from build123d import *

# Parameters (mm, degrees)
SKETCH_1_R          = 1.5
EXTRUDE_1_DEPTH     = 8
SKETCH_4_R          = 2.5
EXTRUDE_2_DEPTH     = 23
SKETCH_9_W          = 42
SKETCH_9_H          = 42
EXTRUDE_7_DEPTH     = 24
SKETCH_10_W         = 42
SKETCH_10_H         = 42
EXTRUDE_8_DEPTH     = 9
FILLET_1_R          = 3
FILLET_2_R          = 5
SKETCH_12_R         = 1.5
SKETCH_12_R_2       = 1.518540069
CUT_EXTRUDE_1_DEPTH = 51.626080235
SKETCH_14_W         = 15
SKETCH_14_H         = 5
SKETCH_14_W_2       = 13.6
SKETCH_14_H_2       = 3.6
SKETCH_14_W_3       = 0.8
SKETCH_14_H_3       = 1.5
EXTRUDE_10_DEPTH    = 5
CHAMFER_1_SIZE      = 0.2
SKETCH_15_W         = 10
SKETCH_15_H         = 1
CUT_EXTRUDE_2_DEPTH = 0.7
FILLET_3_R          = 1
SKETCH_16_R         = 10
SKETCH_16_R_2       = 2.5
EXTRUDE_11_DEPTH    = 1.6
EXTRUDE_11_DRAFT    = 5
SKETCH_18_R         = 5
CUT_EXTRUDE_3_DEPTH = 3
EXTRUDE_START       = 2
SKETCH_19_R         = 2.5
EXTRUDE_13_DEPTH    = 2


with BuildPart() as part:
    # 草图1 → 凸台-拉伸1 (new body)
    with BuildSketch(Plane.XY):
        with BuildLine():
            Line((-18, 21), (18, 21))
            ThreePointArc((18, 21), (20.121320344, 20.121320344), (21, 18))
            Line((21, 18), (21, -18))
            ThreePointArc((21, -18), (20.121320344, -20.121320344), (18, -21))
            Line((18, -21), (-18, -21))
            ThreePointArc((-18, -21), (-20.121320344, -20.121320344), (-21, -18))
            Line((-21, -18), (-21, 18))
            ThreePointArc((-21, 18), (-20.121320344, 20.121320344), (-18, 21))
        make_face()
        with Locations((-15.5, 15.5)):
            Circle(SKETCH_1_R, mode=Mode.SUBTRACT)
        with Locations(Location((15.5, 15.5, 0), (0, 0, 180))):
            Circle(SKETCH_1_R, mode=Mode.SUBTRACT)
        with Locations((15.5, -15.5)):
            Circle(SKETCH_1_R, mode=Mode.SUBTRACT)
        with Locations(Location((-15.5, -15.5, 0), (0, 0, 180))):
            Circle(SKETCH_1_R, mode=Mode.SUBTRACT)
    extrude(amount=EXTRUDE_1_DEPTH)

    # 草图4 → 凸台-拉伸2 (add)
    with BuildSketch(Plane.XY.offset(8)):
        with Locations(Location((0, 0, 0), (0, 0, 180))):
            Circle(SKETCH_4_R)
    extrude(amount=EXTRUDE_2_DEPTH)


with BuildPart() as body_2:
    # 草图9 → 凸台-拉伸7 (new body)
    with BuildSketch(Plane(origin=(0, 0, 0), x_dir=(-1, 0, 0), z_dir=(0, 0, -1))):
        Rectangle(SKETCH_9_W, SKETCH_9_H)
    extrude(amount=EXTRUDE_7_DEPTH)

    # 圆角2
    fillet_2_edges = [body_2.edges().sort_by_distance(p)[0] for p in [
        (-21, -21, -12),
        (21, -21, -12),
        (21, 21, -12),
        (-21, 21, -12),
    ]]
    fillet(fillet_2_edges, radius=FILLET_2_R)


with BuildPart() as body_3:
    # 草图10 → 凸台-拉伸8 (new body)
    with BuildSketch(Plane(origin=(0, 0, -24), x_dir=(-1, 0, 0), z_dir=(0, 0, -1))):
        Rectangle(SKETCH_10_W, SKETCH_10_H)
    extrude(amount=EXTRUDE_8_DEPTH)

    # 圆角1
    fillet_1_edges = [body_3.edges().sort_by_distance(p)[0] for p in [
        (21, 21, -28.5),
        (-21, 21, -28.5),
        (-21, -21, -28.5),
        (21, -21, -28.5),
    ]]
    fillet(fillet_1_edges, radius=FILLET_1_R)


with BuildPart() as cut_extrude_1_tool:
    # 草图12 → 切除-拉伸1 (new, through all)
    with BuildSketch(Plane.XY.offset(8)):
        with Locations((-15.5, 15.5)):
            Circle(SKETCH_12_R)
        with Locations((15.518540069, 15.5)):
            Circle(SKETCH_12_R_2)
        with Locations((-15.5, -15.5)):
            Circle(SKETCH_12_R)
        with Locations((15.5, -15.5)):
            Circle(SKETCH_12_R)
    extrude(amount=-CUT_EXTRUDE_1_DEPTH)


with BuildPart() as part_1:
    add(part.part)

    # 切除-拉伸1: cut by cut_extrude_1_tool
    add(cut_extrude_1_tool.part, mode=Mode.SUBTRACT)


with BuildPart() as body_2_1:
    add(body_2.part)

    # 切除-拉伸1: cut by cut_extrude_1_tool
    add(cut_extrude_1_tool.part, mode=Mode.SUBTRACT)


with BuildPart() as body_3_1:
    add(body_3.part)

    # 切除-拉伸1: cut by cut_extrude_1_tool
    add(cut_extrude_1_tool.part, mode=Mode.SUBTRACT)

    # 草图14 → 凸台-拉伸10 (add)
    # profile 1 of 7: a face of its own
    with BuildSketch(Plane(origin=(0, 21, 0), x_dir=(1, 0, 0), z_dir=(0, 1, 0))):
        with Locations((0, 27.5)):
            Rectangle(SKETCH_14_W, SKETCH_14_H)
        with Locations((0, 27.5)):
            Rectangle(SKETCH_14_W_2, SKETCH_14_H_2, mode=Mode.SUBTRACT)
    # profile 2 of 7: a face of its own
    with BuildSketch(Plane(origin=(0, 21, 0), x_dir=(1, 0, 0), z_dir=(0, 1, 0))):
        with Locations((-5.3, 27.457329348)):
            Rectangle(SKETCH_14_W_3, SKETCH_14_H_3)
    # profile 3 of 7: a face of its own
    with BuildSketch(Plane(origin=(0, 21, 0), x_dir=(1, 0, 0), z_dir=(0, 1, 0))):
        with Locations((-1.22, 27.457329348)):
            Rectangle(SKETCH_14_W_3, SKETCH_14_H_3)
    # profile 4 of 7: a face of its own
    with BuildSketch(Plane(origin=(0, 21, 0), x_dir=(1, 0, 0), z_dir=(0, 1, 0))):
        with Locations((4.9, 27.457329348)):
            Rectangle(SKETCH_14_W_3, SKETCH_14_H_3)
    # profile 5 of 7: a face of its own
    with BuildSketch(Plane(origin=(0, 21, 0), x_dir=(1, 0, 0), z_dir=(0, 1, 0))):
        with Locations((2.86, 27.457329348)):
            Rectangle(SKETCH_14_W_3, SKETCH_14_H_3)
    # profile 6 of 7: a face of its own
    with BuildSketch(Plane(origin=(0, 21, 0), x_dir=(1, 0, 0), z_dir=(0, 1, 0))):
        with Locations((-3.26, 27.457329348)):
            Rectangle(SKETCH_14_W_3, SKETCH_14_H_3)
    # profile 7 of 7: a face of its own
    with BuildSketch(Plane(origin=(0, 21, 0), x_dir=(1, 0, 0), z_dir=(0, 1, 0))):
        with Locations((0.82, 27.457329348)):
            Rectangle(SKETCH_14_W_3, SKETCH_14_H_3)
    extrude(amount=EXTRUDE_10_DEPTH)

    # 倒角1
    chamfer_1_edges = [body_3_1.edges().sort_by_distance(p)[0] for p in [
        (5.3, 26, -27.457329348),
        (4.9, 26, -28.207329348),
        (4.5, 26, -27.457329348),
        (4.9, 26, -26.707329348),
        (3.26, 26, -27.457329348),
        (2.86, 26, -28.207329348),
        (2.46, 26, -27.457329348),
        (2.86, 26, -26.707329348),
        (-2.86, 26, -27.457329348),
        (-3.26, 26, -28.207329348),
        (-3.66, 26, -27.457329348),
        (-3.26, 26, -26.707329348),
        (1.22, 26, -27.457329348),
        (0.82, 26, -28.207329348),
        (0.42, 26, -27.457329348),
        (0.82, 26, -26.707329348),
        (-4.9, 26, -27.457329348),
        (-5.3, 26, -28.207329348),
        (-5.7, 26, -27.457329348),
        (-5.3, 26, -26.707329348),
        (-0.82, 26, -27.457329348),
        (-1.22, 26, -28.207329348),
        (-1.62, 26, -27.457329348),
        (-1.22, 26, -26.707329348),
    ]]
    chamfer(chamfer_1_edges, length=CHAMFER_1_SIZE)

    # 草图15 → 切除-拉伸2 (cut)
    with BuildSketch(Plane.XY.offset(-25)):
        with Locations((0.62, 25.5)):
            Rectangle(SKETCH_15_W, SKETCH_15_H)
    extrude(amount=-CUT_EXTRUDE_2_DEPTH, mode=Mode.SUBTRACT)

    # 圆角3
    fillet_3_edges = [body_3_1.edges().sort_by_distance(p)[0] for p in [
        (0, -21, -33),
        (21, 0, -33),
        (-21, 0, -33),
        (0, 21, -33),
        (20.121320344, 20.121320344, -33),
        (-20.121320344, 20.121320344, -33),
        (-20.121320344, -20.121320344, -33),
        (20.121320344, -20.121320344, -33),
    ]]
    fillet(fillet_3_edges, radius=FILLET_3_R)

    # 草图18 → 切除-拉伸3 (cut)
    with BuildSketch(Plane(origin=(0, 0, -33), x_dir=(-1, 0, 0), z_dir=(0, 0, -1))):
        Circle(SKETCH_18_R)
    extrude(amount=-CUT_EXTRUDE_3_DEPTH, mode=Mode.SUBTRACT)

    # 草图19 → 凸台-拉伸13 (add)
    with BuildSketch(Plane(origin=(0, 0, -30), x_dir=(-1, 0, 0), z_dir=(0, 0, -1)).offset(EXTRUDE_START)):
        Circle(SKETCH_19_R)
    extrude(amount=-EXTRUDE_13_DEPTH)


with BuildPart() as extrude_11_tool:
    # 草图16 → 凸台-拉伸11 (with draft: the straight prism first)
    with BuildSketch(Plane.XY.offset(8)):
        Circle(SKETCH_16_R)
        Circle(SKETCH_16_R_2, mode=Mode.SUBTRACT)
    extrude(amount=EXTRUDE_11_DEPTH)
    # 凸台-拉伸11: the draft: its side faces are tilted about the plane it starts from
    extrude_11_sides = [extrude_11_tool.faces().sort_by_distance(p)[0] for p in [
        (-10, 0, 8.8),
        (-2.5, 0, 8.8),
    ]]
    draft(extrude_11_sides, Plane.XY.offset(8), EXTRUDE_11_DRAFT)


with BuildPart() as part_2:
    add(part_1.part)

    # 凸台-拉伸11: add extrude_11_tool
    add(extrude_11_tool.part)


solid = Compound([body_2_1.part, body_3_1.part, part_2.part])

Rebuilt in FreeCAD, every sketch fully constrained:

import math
import FreeCAD as App
import Part
import Sketcher

V = App.Vector
Q = App.Units.Quantity


def edges_at(feature, points):
    """Names of the edges that pass closest to the given points."""
    edges = feature.Shape.Edges
    near = lambda p: min(range(len(edges)), key=lambda i: edges[i].distToShape(Part.Vertex(*p))[0])
    return sorted({f"Edge{near(p) + 1}" for p in points})


def faces_at(feature, points):
    """Names of the faces that lie closest to the given points."""
    faces = feature.Shape.Faces
    near = lambda p: min(range(len(faces)), key=lambda i: faces[i].distToShape(Part.Vertex(*p))[0])
    return sorted({f"Face{near(p) + 1}" for p in points})

doc = App.newDocument("Part")
params = doc.addObject("Spreadsheet::Sheet", "Params")
for row, (alias, value) in enumerate([
    ("sketch1_diameter", "3 mm"),
    ("sketch1_radius", "3 mm"),
    ("sketch1_width", "36 mm"),
    ("pad1_length", "8 mm"),
    ("sketch2_diameter", "5 mm"),
    ("pad2_length", "23 mm"),
    ("sketch3_width", "42 mm"),
    ("pad3_length", "24 mm"),
    ("fillet_radius", "5 mm"),
    ("sketch4_width", "42 mm"),
    ("pad4_length", "9 mm"),
    ("fillet2_radius", "3 mm"),
    ("sketch5_diameter", "3 mm"),
    ("pad5_length", "51.62608 mm"),
    ("sketch6_width", "15 mm"),
    ("sketch6_height", "5 mm"),
    ("sketch6_width2", "13.6 mm"),
    ("sketch6_width3", "0.8 mm"),
    ("sketch6_height2", "3.6 mm"),
    ("pad6_length", "5 mm"),
    ("chamfer_size", "0.2 mm"),
    ("sketch7_width", "10 mm"),
    ("sketch7_height", "1 mm"),
    ("pocket1_length", "0.7 mm"),
    ("fillet3_radius", "1 mm"),
    ("sketch8_diameter", "10 mm"),
    ("pocket2_length", "3 mm"),
    ("sketch9_diameter", "5 mm"),
    ("pad7_length", "2 mm"),
    ("sketch10_diameter", "20 mm"),
    ("sketch10_diameter2", "5 mm"),
    ("pad8_length", "1.6 mm"),
    ("draft_angle", "5 deg"),
], start=1):
    params.set(f"A{row}", alias)
    params.set(f"B{row}", "=" + value)
    params.setAlias(f"B{row}", alias)

body = doc.addObject("PartDesign::Body", "Body")

# Sketch on XY plane
sketch1 = doc.addObject("Sketcher::SketchObject", "Sketch")
body.addObject(sketch1)
sketch1.AttachmentSupport = (doc.XY_Plane, [""])
sketch1.MapMode = "FlatFace"
sketch1.addGeometry([
    Part.LineSegment(V(18, 21, 0), V(-18, 21, 0)),  # 0
    Part.ArcOfCircle(Part.Circle(V(-18, 18, 0), V(0, 0, 1), 3), math.radians(90), math.radians(180)),  # 1
    Part.LineSegment(V(-21, 18, 0), V(-21, -18, 0)),  # 2
    Part.ArcOfCircle(Part.Circle(V(-18, -18, 0), V(0, 0, 1), 3), math.radians(180), math.radians(270)),  # 3
    Part.LineSegment(V(-18, -21, 0), V(18, -21, 0)),  # 4
    Part.ArcOfCircle(Part.Circle(V(18, -18, 0), V(0, 0, 1), 3), math.radians(-90), math.radians(0)),  # 5
    Part.LineSegment(V(21, -18, 0), V(21, 18, 0)),  # 6
    Part.ArcOfCircle(Part.Circle(V(18, 18, 0), V(0, 0, 1), 3), math.radians(0), math.radians(90)),  # 7
    Part.Circle(V(15.5, -15.5, 0), V(0, 0, 1), 1.5),  # 8
    Part.Circle(V(-15.5, -15.5, 0), V(0, 0, 1), 1.5),  # 9
    Part.Circle(V(15.5, 15.5, 0), V(0, 0, 1), 1.5),  # 10
    Part.Circle(V(-15.5, 15.5, 0), V(0, 0, 1), 1.5),  # 11
], False)
sketch1.addConstraint([
    Sketcher.Constraint("Tangent", 0, 2, 1, 1),
    Sketcher.Constraint("Tangent", 1, 2, 2, 1),
    Sketcher.Constraint("Tangent", 2, 2, 3, 1),
    Sketcher.Constraint("Tangent", 3, 2, 4, 1),
    Sketcher.Constraint("Tangent", 4, 2, 5, 1),
    Sketcher.Constraint("Tangent", 5, 2, 6, 1),
    Sketcher.Constraint("Tangent", 6, 2, 7, 1),
    Sketcher.Constraint("Tangent", 7, 2, 0, 1),
    Sketcher.Constraint("Horizontal", 0),
    Sketcher.Constraint("Vertical", 2),
    Sketcher.Constraint("Horizontal", 4),
    Sketcher.Constraint("Vertical", 6),
    Sketcher.Constraint("Equal", 1, 3),
    Sketcher.Constraint("Equal", 3, 5),
    Sketcher.Constraint("Equal", 5, 7),
    Sketcher.Constraint("Equal", 8, 9),
    Sketcher.Constraint("Equal", 9, 10),
    Sketcher.Constraint("Equal", 10, 11),
    Sketcher.Constraint("Symmetric", 1, 3, 5, 3, -1, 1),
    Sketcher.Constraint("Symmetric", 9, 3, 10, 3, -1, 1),
    Sketcher.Constraint("Symmetric", 8, 3, 11, 3, -1, 1),
    Sketcher.Constraint("Symmetric", 8, 3, 9, 3, -2),
    Sketcher.Constraint("Equal", 4, 2),
    Sketcher.Constraint("Diameter", 8, Q("3 mm")),
    Sketcher.Constraint("Radius", 1, Q("3 mm")),
    Sketcher.Constraint("DistanceX", 0, 2, 0, 1, Q("36 mm")),
    Sketcher.Constraint("DistanceX", 9, 3, 8, 3, Q("31 mm")),
    Sketcher.Constraint("DistanceY", 8, 3, 10, 3, Q("31 mm")),
])
sketch1.setExpression("Constraints[23]", "Params.sketch1_diameter")
sketch1.setExpression("Constraints[24]", "Params.sketch1_radius")
sketch1.setExpression("Constraints[25]", "Params.sketch1_width")
pad1 = doc.addObject("PartDesign::Pad", "Pad")
body.addObject(pad1)
pad1.Profile = sketch1
pad1.setExpression("Length", "Params.pad1_length")

# Sketch on XY plane
sketch2 = doc.addObject("Sketcher::SketchObject", "Sketch001")
body.addObject(sketch2)
sketch2.AttachmentSupport = (doc.XY_Plane, [""])
sketch2.MapMode = "FlatFace"
sketch2.AttachmentOffset = App.Placement(V(0, 0, 8), App.Rotation())
sketch2.addGeometry(Part.Circle(V(0, 0, 0), V(0, 0, 1), 2.5), False)
sketch2.addConstraint([
    Sketcher.Constraint("Coincident", 0, 3, -1, 1),
    Sketcher.Constraint("Diameter", 0, Q("5 mm")),
])
sketch2.setExpression("Constraints[1]", "Params.sketch2_diameter")
pad2 = doc.addObject("PartDesign::Pad", "Pad001")
body.addObject(pad2)
pad2.Profile = sketch2
pad2.setExpression("Length", "Params.pad2_length")
body2 = doc.addObject("PartDesign::Body", "Body001")

# Sketch on XY plane
sketch3 = doc.addObject("Sketcher::SketchObject", "Sketch002")
body2.addObject(sketch3)
sketch3.AttachmentSupport = (doc.getObject("XY_Plane001"), [""])
sketch3.MapMode = "FlatFace"
sketch3.addGeometry([
    Part.LineSegment(V(21, 21, 0), V(21, -21, 0)),
    Part.LineSegment(V(21, -21, 0), V(-21, -21, 0)),
    Part.LineSegment(V(-21, -21, 0), V(-21, 21, 0)),
    Part.LineSegment(V(-21, 21, 0), V(21, 21, 0)),
], False)
sketch3.addConstraint([
    Sketcher.Constraint("Coincident", 0, 2, 1, 1),
    Sketcher.Constraint("Coincident", 1, 2, 2, 1),
    Sketcher.Constraint("Coincident", 2, 2, 3, 1),
    Sketcher.Constraint("Coincident", 3, 2, 0, 1),
    Sketcher.Constraint("Vertical", 0),
    Sketcher.Constraint("Horizontal", 1),
    Sketcher.Constraint("Vertical", 2),
    Sketcher.Constraint("Horizontal", 3),
    Sketcher.Constraint("Symmetric", 0, 2, 2, 2, -1, 1),
    Sketcher.Constraint("Equal", 3, 0),
    Sketcher.Constraint("DistanceX", 1, 2, 1, 1, Q("42 mm")),
])
sketch3.setExpression("Constraints[10]", "Params.sketch3_width")
pad3 = doc.addObject("PartDesign::Pad", "Pad002")
body2.addObject(pad3)
pad3.Profile = sketch3
pad3.setExpression("Length", "Params.pad3_length")
pad3.Reversed = True
doc.recompute()

fillet = doc.addObject("PartDesign::Fillet", "Fillet")
body2.addObject(fillet)
fillet.Base = (pad3, edges_at(pad3, [
    (-21, -21, -12),
    (21, -21, -12),
    (21, 21, -12),
    (-21, 21, -12),
]))
fillet.setExpression("Radius", "Params.fillet_radius")
body3 = doc.addObject("PartDesign::Body", "Body002")

# Sketch on XY plane
sketch4 = doc.addObject("Sketcher::SketchObject", "Sketch003")
body3.addObject(sketch4)
sketch4.AttachmentSupport = (doc.getObject("XY_Plane002"), [""])
sketch4.MapMode = "FlatFace"
sketch4.AttachmentOffset = App.Placement(V(0, 0, -24), App.Rotation())
sketch4.addGeometry([
    Part.LineSegment(V(21, 21, 0), V(21, -21, 0)),
    Part.LineSegment(V(21, -21, 0), V(-21, -21, 0)),
    Part.LineSegment(V(-21, -21, 0), V(-21, 21, 0)),
    Part.LineSegment(V(-21, 21, 0), V(21, 21, 0)),
], False)
sketch4.addConstraint([
    Sketcher.Constraint("Coincident", 0, 2, 1, 1),
    Sketcher.Constraint("Coincident", 1, 2, 2, 1),
    Sketcher.Constraint("Coincident", 2, 2, 3, 1),
    Sketcher.Constraint("Coincident", 3, 2, 0, 1),
    Sketcher.Constraint("Vertical", 0),
    Sketcher.Constraint("Horizontal", 1),
    Sketcher.Constraint("Vertical", 2),
    Sketcher.Constraint("Horizontal", 3),
    Sketcher.Constraint("Symmetric", 0, 2, 2, 2, -1, 1),
    Sketcher.Constraint("Equal", 3, 0),
    Sketcher.Constraint("DistanceX", 1, 2, 1, 1, Q("42 mm")),
])
sketch4.setExpression("Constraints[10]", "Params.sketch4_width")
pad4 = doc.addObject("PartDesign::Pad", "Pad003")
body3.addObject(pad4)
pad4.Profile = sketch4
pad4.setExpression("Length", "Params.pad4_length")
pad4.Reversed = True
doc.recompute()

fillet2 = doc.addObject("PartDesign::Fillet", "Fillet001")
body3.addObject(fillet2)
fillet2.Base = (pad4, edges_at(pad4, [
    (21, 21, -28.5),
    (-21, 21, -28.5),
    (-21, -21, -28.5),
    (21, -21, -28.5),
]))
fillet2.setExpression("Radius", "Params.fillet2_radius")
body4 = doc.addObject("PartDesign::Body", "Body003")
body4.AllowCompound = True

# Sketch on XY plane
sketch5 = doc.addObject("Sketcher::SketchObject", "Sketch004")
body4.addObject(sketch5)
sketch5.AttachmentSupport = (doc.getObject("XY_Plane003"), [""])
sketch5.MapMode = "FlatFace"
sketch5.AttachmentOffset = App.Placement(V(0, 0, 8), App.Rotation())
sketch5.addGeometry([
    Part.Circle(V(-15.5, 15.5, 0), V(0, 0, 1), 1.5),
    Part.Circle(V(15.5, 15.5, 0), V(0, 0, 1), 1.5),
    Part.Circle(V(-15.5, -15.5, 0), V(0, 0, 1), 1.5),
    Part.Circle(V(15.5, -15.5, 0), V(0, 0, 1), 1.5),
], False)
sketch5.addConstraint([
    Sketcher.Constraint("Equal", 0, 2),
    Sketcher.Constraint("Equal", 2, 3),
    Sketcher.Constraint("Symmetric", 0, 3, 3, 3, -1, 1),
    Sketcher.Constraint("Symmetric", 2, 3, 3, 3, -2),
    Sketcher.Constraint("Horizontal", 0, 3, 1, 3),
    Sketcher.Constraint("Diameter", 0, Q("3 mm")),
    Sketcher.Constraint("DistanceY", 2, 3, 0, 3, Q("31 mm")),
    Sketcher.Constraint("DistanceX", 2, 3, 3, 3, Q("31 mm")),
    Sketcher.Constraint("Diameter", 1, Q("3.03708 mm")),
    Sketcher.Constraint("DistanceX", -1, 1, 1, 3, Q("15.51854 mm")),
])
sketch5.setExpression("Constraints[5]", "Params.sketch5_diameter")
pad5 = doc.addObject("PartDesign::Pad", "Pad004")
body4.addObject(pad5)
pad5.Profile = sketch5
pad5.setExpression("Length", "Params.pad5_length")
pad5.Reversed = True
doc.recompute()

body5 = doc.addObject("PartDesign::Body", "Body004")
body5.BaseFeature = body4
boolean = doc.addObject("PartDesign::Boolean", "Boolean")
body.addObject(boolean)
boolean.Type = "Cut"
boolean.addObjects([body5])
doc.recompute()

body6 = doc.addObject("PartDesign::Body", "Body005")
body6.BaseFeature = body4
boolean2 = doc.addObject("PartDesign::Boolean", "Boolean001")
body2.addObject(boolean2)
boolean2.Type = "Cut"
boolean2.addObjects([body6])
doc.recompute()

boolean3 = doc.addObject("PartDesign::Boolean", "Boolean002")
body3.addObject(boolean3)
boolean3.Type = "Cut"
boolean3.addObjects([body4])

# Sketch on XZ plane
sketch6 = doc.addObject("Sketcher::SketchObject", "Sketch005")
body3.addObject(sketch6)
sketch6.AttachmentSupport = (doc.getObject("XZ_Plane002"), [""])
sketch6.MapMode = "FlatFace"
sketch6.AttachmentOffset = App.Placement(V(0, 0, -21), App.Rotation())
sketch6.addGeometry([
    Part.LineSegment(V(-7.5, -30, 0), V(-7.5, -25, 0)),  # 0
    Part.LineSegment(V(-7.5, -25, 0), V(7.5, -25, 0)),  # 1
    Part.LineSegment(V(7.5, -25, 0), V(7.5, -30, 0)),  # 2
    Part.LineSegment(V(7.5, -30, 0), V(-7.5, -30, 0)),  # 3
    Part.LineSegment(V(6.8, -25.7, 0), V(-6.8, -25.7, 0)),  # 4
    Part.LineSegment(V(-6.8, -25.7, 0), V(-6.8, -29.3, 0)),  # 5
    Part.LineSegment(V(-6.8, -29.3, 0), V(6.8, -29.3, 0)),  # 6
    Part.LineSegment(V(6.8, -29.3, 0), V(6.8, -25.7, 0)),  # 7
    Part.LineSegment(V(-5.7, -28.2, 0), V(-5.7, -26.7, 0)),  # 8
    Part.LineSegment(V(-5.7, -26.7, 0), V(-4.9, -26.7, 0)),  # 9
    Part.LineSegment(V(-4.9, -26.7, 0), V(-4.9, -28.2, 0)),  # 10
    Part.LineSegment(V(-4.9, -28.2, 0), V(-5.7, -28.2, 0)),  # 11
    Part.LineSegment(V(-1.6, -28.2, 0), V(-1.6, -26.7, 0)),  # 12
    Part.LineSegment(V(-1.6, -26.7, 0), V(-0.8, -26.7, 0)),  # 13
    Part.LineSegment(V(-0.8, -26.7, 0), V(-0.8, -28.2, 0)),  # 14
    Part.LineSegment(V(-0.8, -28.2, 0), V(-1.6, -28.2, 0)),  # 15
    Part.LineSegment(V(4.5, -28.2, 0), V(4.5, -26.7, 0)),  # 16
    Part.LineSegment(V(4.5, -26.7, 0), V(5.3, -26.7, 0)),  # 17
    Part.LineSegment(V(5.3, -26.7, 0), V(5.3, -28.2, 0)),  # 18
    Part.LineSegment(V(5.3, -28.2, 0), V(4.5, -28.2, 0)),  # 19
    Part.LineSegment(V(2.5, -28.2, 0), V(2.5, -26.7, 0)),  # 20
    Part.LineSegment(V(2.5, -26.7, 0), V(3.3, -26.7, 0)),  # 21
    Part.LineSegment(V(3.3, -26.7, 0), V(3.3, -28.2, 0)),  # 22
    Part.LineSegment(V(3.3, -28.2, 0), V(2.5, -28.2, 0)),  # 23
    Part.LineSegment(V(-3.7, -28.2, 0), V(-3.7, -26.7, 0)),  # 24
    Part.LineSegment(V(-3.7, -26.7, 0), V(-2.9, -26.7, 0)),  # 25
    Part.LineSegment(V(-2.9, -26.7, 0), V(-2.9, -28.2, 0)),  # 26
    Part.LineSegment(V(-2.9, -28.2, 0), V(-3.7, -28.2, 0)),  # 27
    Part.LineSegment(V(0.4, -28.2, 0), V(0.4, -26.7, 0)),  # 28
    Part.LineSegment(V(0.4, -26.7, 0), V(1.2, -26.7, 0)),  # 29
    Part.LineSegment(V(1.2, -26.7, 0), V(1.2, -28.2, 0)),  # 30
    Part.LineSegment(V(1.2, -28.2, 0), V(0.4, -28.2, 0)),  # 31
], False)
sketch6.addConstraint([
    Sketcher.Constraint("Coincident", 0, 2, 1, 1),
    Sketcher.Constraint("Coincident", 1, 2, 2, 1),
    Sketcher.Constraint("Coincident", 2, 2, 3, 1),
    Sketcher.Constraint("Coincident", 3, 2, 0, 1),
    Sketcher.Constraint("Coincident", 4, 2, 5, 1),
    Sketcher.Constraint("Coincident", 5, 2, 6, 1),
    Sketcher.Constraint("Coincident", 6, 2, 7, 1),
    Sketcher.Constraint("Coincident", 7, 2, 4, 1),
    Sketcher.Constraint("Coincident", 8, 2, 9, 1),
    Sketcher.Constraint("Coincident", 9, 2, 10, 1),
    Sketcher.Constraint("Coincident", 10, 2, 11, 1),
    Sketcher.Constraint("Coincident", 11, 2, 8, 1),
    Sketcher.Constraint("Coincident", 12, 2, 13, 1),
    Sketcher.Constraint("Coincident", 13, 2, 14, 1),
    Sketcher.Constraint("Coincident", 14, 2, 15, 1),
    Sketcher.Constraint("Coincident", 15, 2, 12, 1),
    Sketcher.Constraint("Coincident", 16, 2, 17, 1),
    Sketcher.Constraint("Coincident", 17, 2, 18, 1),
    Sketcher.Constraint("Coincident", 18, 2, 19, 1),
    Sketcher.Constraint("Coincident", 19, 2, 16, 1),
    Sketcher.Constraint("Coincident", 20, 2, 21, 1),
    Sketcher.Constraint("Coincident", 21, 2, 22, 1),
    Sketcher.Constraint("Coincident", 22, 2, 23, 1),
    Sketcher.Constraint("Coincident", 23, 2, 20, 1),
    Sketcher.Constraint("Coincident", 24, 2, 25, 1),
    Sketcher.Constraint("Coincident", 25, 2, 26, 1),
    Sketcher.Constraint("Coincident", 26, 2, 27, 1),
    Sketcher.Constraint("Coincident", 27, 2, 24, 1),
    Sketcher.Constraint("Coincident", 28, 2, 29, 1),
    Sketcher.Constraint("Coincident", 29, 2, 30, 1),
    Sketcher.Constraint("Coincident", 30, 2, 31, 1),
    Sketcher.Constraint("Coincident", 31, 2, 28, 1),
    Sketcher.Constraint("Vertical", 0),
    Sketcher.Constraint("Horizontal", 1),
    Sketcher.Constraint("Vertical", 2),
    Sketcher.Constraint("Horizontal", 3),
    Sketcher.Constraint("Horizontal", 4),
    Sketcher.Constraint("Vertical", 5),
    Sketcher.Constraint("Horizontal", 6),
    Sketcher.Constraint("Vertical", 7),
    Sketcher.Constraint("Vertical", 8),
    Sketcher.Constraint("Horizontal", 9),
    Sketcher.Constraint("Vertical", 10),
    Sketcher.Constraint("Horizontal", 11),
    Sketcher.Constraint("Vertical", 12),
    Sketcher.Constraint("Horizontal", 13),
    Sketcher.Constraint("Vertical", 14),
    Sketcher.Constraint("Horizontal", 15),
    Sketcher.Constraint("Vertical", 16),
    Sketcher.Constraint("Horizontal", 17),
    Sketcher.Constraint("Vertical", 18),
    Sketcher.Constraint("Horizontal", 19),
    Sketcher.Constraint("Vertical", 20),
    Sketcher.Constraint("Horizontal", 21),
    Sketcher.Constraint("Vertical", 22),
    Sketcher.Constraint("Horizontal", 23),
    Sketcher.Constraint("Vertical", 24),
    Sketcher.Constraint("Horizontal", 25),
    Sketcher.Constraint("Vertical", 26),
    Sketcher.Constraint("Horizontal", 27),
    Sketcher.Constraint("Vertical", 28),
    Sketcher.Constraint("Horizontal", 29),
    Sketcher.Constraint("Vertical", 30),
    Sketcher.Constraint("Horizontal", 31),
    Sketcher.Constraint("Horizontal", 9, 2, 12, 2),
    Sketcher.Constraint("Horizontal", 11, 2, 14, 2),
    Sketcher.Constraint("Horizontal", 13, 2, 16, 2),
    Sketcher.Constraint("Horizontal", 15, 2, 18, 2),
    Sketcher.Constraint("Horizontal", 17, 2, 20, 2),
    Sketcher.Constraint("Horizontal", 19, 2, 22, 2),
    Sketcher.Constraint("Horizontal", 21, 2, 24, 2),
    Sketcher.Constraint("Horizontal", 23, 2, 26, 2),
    Sketcher.Constraint("Horizontal", 25, 2, 28, 2),
    Sketcher.Constraint("Horizontal", 27, 2, 30, 2),
    Sketcher.Constraint("Equal", 11, 13),
    Sketcher.Constraint("Equal", 15, 17),
    Sketcher.Constraint("Equal", 19, 21),
    Sketcher.Constraint("Equal", 23, 25),
    Sketcher.Constraint("Equal", 27, 29),
    Sketcher.Constraint("DistanceX", 1, 1, 1, 2, Q("15 mm")),
    Sketcher.Constraint("DistanceY", 0, 1, 0, 2, Q("5 mm")),
    Sketcher.Constraint("DistanceX", 4, 2, 4, 1, Q("13.6 mm")),
    Sketcher.Constraint("DistanceX", 9, 1, 9, 2, Q("0.8 mm")),
    Sketcher.Constraint("DistanceY", 5, 2, 5, 1, Q("3.6 mm")),
    Sketcher.Constraint("DistanceY", 8, 1, 8, 2, Q("1.5 mm")),
    Sketcher.Constraint("DistanceY", 0, 2, -1, 1, Q("25 mm")),
    Sketcher.Constraint("DistanceX", 16, 2, 1, 2, Q("3 mm")),
    Sketcher.Constraint("DistanceX", 0, 2, -1, 1, Q("7.5 mm")),
    Sketcher.Constraint("DistanceX", 4, 2, -1, 1, Q("6.8 mm")),
    Sketcher.Constraint("DistanceY", 4, 2, -1, 1, Q("25.7 mm")),
    Sketcher.Constraint("DistanceX", 8, 2, -1, 1, Q("5.7 mm")),
    Sketcher.Constraint("DistanceX", 12, 2, -1, 1, Q("1.62 mm")),
    Sketcher.Constraint("DistanceX", -1, 1, 20, 2, Q("2.46 mm")),
    Sketcher.Constraint("DistanceX", 24, 2, -1, 1, Q("3.66 mm")),
    Sketcher.Constraint("DistanceX", -1, 1, 28, 2, Q("0.42 mm")),
    Sketcher.Constraint("DistanceY", 8, 2, -1, 1, Q("26.707329 mm")),
])
sketch6.setExpression("Constraints[79]", "Params.sketch6_width")
sketch6.setExpression("Constraints[80]", "Params.sketch6_height")
sketch6.setExpression("Constraints[81]", "Params.sketch6_width2")
sketch6.setExpression("Constraints[82]", "Params.sketch6_width3")
sketch6.setExpression("Constraints[83]", "Params.sketch6_height2")
pad6 = doc.addObject("PartDesign::Pad", "Pad005")
body3.addObject(pad6)
pad6.Profile = sketch6
pad6.setExpression("Length", "Params.pad6_length")
pad6.Reversed = True
doc.recompute()

chamfer = doc.addObject("PartDesign::Chamfer", "Chamfer")
body3.addObject(chamfer)
chamfer.Base = (pad6, edges_at(pad6, [
    (5.3, 26, -27.457),
    (4.9, 26, -28.207),
    (4.5, 26, -27.457),
    (4.9, 26, -26.707),
    (3.26, 26, -27.457),
    (2.86, 26, -28.207),
    (2.46, 26, -27.457),
    (2.86, 26, -26.707),
    (-2.86, 26, -27.457),
    (-3.26, 26, -28.207),
    (-3.66, 26, -27.457),
    (-3.26, 26, -26.707),
    (1.22, 26, -27.457),
    (0.82, 26, -28.207),
    (0.42, 26, -27.457),
    (0.82, 26, -26.707),
    (-4.9, 26, -27.457),
    (-5.3, 26, -28.207),
    (-5.7, 26, -27.457),
    (-5.3, 26, -26.707),
    (-0.82, 26, -27.457),
    (-1.22, 26, -28.207),
    (-1.62, 26, -27.457),
    (-1.22, 26, -26.707),
]))
chamfer.setExpression("Size", "Params.chamfer_size")

# Sketch on XY plane
sketch7 = doc.addObject("Sketcher::SketchObject", "Sketch006")
body3.addObject(sketch7)
sketch7.AttachmentSupport = (doc.getObject("XY_Plane002"), [""])
sketch7.MapMode = "FlatFace"
sketch7.AttachmentOffset = App.Placement(V(0, 0, -25), App.Rotation())
sketch7.addGeometry([
    Part.LineSegment(V(-4.4, 26, 0), V(-4.4, 25, 0)),
    Part.LineSegment(V(-4.4, 25, 0), V(5.6, 25, 0)),
    Part.LineSegment(V(5.6, 25, 0), V(5.6, 26, 0)),
    Part.LineSegment(V(5.6, 26, 0), V(-4.4, 26, 0)),
], False)
sketch7.addConstraint([
    Sketcher.Constraint("Coincident", 0, 2, 1, 1),
    Sketcher.Constraint("Coincident", 1, 2, 2, 1),
    Sketcher.Constraint("Coincident", 2, 2, 3, 1),
    Sketcher.Constraint("Coincident", 3, 2, 0, 1),
    Sketcher.Constraint("Vertical", 0),
    Sketcher.Constraint("Horizontal", 1),
    Sketcher.Constraint("Vertical", 2),
    Sketcher.Constraint("Horizontal", 3),
    Sketcher.Constraint("DistanceX", 1, 1, 1, 2, Q("10 mm")),
    Sketcher.Constraint("DistanceY", 0, 2, 0, 1, Q("1 mm")),
    Sketcher.Constraint("DistanceY", -1, 1, 0, 2, Q("25 mm")),
    Sketcher.Constraint("DistanceX", 0, 2, -1, 1, Q("4.38 mm")),
])
sketch7.setExpression("Constraints[8]", "Params.sketch7_width")
sketch7.setExpression("Constraints[9]", "Params.sketch7_height")
pocket1 = doc.addObject("PartDesign::Pocket", "Pocket")
body3.addObject(pocket1)
pocket1.Profile = sketch7
pocket1.setExpression("Length", "Params.pocket1_length")
doc.recompute()

fillet3 = doc.addObject("PartDesign::Fillet", "Fillet002")
body3.addObject(fillet3)
fillet3.Base = (pocket1, edges_at(pocket1, [
    (0, -21, -33),
    (21, 0, -33),
    (-21, 0, -33),
    (0, 21, -33),
    (20.121, 20.121, -33),
    (-20.121, 20.121, -33),
    (-20.121, -20.121, -33),
    (20.121, -20.121, -33),
]))
fillet3.setExpression("Radius", "Params.fillet3_radius")

# Sketch on XY plane
sketch8 = doc.addObject("Sketcher::SketchObject", "Sketch007")
body3.addObject(sketch8)
sketch8.AttachmentSupport = (doc.getObject("XY_Plane002"), [""])
sketch8.MapMode = "FlatFace"
sketch8.AttachmentOffset = App.Placement(V(0, 0, -33), App.Rotation())
sketch8.addGeometry(Part.Circle(V(0, 0, 0), V(0, 0, 1), 5), False)
sketch8.addConstraint([
    Sketcher.Constraint("Coincident", 0, 3, -1, 1),
    Sketcher.Constraint("Diameter", 0, Q("10 mm")),
])
sketch8.setExpression("Constraints[1]", "Params.sketch8_diameter")
pocket2 = doc.addObject("PartDesign::Pocket", "Pocket001")
body3.addObject(pocket2)
pocket2.Profile = sketch8
pocket2.setExpression("Length", "Params.pocket2_length")
pocket2.Reversed = True

# Sketch on XY plane
sketch9 = doc.addObject("Sketcher::SketchObject", "Sketch008")
body3.addObject(sketch9)
sketch9.AttachmentSupport = (doc.getObject("XY_Plane002"), [""])
sketch9.MapMode = "FlatFace"
sketch9.AttachmentOffset = App.Placement(V(0, 0, -32), App.Rotation())
sketch9.addGeometry(Part.Circle(V(0, 0, 0), V(0, 0, 1), 2.5), False)
sketch9.addConstraint([
    Sketcher.Constraint("Coincident", 0, 3, -1, 1),
    Sketcher.Constraint("Diameter", 0, Q("5 mm")),
])
sketch9.setExpression("Constraints[1]", "Params.sketch9_diameter")
pad7 = doc.addObject("PartDesign::Pad", "Pad006")
body3.addObject(pad7)
pad7.Profile = sketch9
pad7.setExpression("Length", "Params.pad7_length")
body7 = doc.addObject("PartDesign::Body", "Body006")

# Sketch on XY plane
sketch10 = doc.addObject("Sketcher::SketchObject", "Sketch009")
body7.addObject(sketch10)
sketch10.AttachmentSupport = (doc.getObject("XY_Plane006"), [""])
sketch10.MapMode = "FlatFace"
sketch10.AttachmentOffset = App.Placement(V(0, 0, 8), App.Rotation())
sketch10.addGeometry([
    Part.Circle(V(0, 0, 0), V(0, 0, 1), 10),
    Part.Circle(V(0, 0, 0), V(0, 0, 1), 2.5),
], False)
sketch10.addConstraint([
    Sketcher.Constraint("Coincident", 0, 3, -1, 1),
    Sketcher.Constraint("Coincident", 1, 3, -1, 1),
    Sketcher.Constraint("Diameter", 0, Q("20 mm")),
    Sketcher.Constraint("Diameter", 1, Q("5 mm")),
])
sketch10.setExpression("Constraints[2]", "Params.sketch10_diameter")
sketch10.setExpression("Constraints[3]", "Params.sketch10_diameter2")
pad8 = doc.addObject("PartDesign::Pad", "Pad007")
body7.addObject(pad8)
pad8.Profile = sketch10
pad8.setExpression("Length", "Params.pad8_length")
doc.recompute()

datumplane = doc.addObject("PartDesign::Plane", "DatumPlane")
body7.addObject(datumplane)
datumplane.AttachmentSupport = (doc.getObject("XY_Plane006"), [""])
datumplane.MapMode = "FlatFace"
datumplane.AttachmentOffset = App.Placement(V(0, 0, 8), App.Rotation())
draft = doc.addObject("PartDesign::Draft", "Draft")
body7.addObject(draft)
draft.Base = (pad8, faces_at(pad8, [(-10, 0, 8.8), (-2.5, 0, 8.8)]))
draft.NeutralPlane = (datumplane, [""])
draft.setExpression("Angle", "Params.draft_angle")
draft.Reversed = False
doc.recompute()

boolean4 = doc.addObject("PartDesign::Boolean", "Boolean003")
body.addObject(boolean4)
boolean4.Type = "Fuse"
boolean4.addObjects([body7])

doc.recompute()
